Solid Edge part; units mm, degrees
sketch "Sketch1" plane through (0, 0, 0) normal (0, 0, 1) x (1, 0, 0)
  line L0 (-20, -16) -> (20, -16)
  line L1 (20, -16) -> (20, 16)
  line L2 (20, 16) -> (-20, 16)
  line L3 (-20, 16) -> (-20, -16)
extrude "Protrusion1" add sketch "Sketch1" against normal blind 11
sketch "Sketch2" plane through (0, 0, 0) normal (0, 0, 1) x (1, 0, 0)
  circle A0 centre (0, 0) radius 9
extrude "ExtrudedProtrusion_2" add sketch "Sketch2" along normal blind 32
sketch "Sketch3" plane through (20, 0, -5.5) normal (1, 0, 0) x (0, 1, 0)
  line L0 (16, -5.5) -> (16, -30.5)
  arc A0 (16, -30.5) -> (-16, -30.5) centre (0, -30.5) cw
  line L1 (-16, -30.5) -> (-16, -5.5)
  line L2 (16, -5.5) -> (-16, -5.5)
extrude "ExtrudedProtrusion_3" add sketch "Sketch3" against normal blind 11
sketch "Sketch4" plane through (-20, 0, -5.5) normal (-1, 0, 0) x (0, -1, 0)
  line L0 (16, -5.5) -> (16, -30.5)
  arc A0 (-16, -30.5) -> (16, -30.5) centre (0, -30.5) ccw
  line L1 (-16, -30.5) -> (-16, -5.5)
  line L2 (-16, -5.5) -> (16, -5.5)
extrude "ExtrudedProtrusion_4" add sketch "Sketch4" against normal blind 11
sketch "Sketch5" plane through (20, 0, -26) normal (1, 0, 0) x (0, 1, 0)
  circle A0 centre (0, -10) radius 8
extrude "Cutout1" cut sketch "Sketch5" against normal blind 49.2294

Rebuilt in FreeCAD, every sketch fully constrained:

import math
import FreeCAD as App
import Part
import Sketcher

V = App.Vector
Q = App.Units.Quantity


def add_polygon(sketch, points):
    """Adds a closed chain of lines whose ends are joined by coincident constraints."""
    first, n = sketch.GeometryCount, len(points)
    for a, b in zip(points, points[1:] + points[:1]):
        sketch.addGeometry(Part.LineSegment(App.Vector(*a, 0), App.Vector(*b, 0)), False)
    for i in range(n):
        sketch.addConstraint(Sketcher.Constraint("Coincident", first + i, 2, first + (i + 1) % n, 1))

doc = App.newDocument("Part")
body = doc.addObject("PartDesign::Body", "Body")

# Sketch on XY plane
sketch1 = body.newObject("Sketcher::SketchObject", "Sketch")
sketch1.AttachmentSupport = (doc.getObject("XY_Plane"), [""])
sketch1.MapMode = "FlatFace"
add_polygon(sketch1, [(-20, 16), (-20, -16), (20, -16), (20, 16)])  # lines 0-3
sketch1.addConstraint([
    Sketcher.Constraint("Vertical", 0),
    Sketcher.Constraint("Horizontal", 1),
    Sketcher.Constraint("Vertical", 2),
    Sketcher.Constraint("Horizontal", 3),
    Sketcher.Constraint("Symmetric", 0, 2, 2, 2, -1, 1),
    Sketcher.Constraint("DistanceX", 1, 1, 1, 2, Q("40 mm")),
    Sketcher.Constraint("DistanceY", 0, 2, 0, 1, Q("32 mm")),
])
pad1 = body.newObject("PartDesign::Pad", "Pad")
pad1.Profile = sketch1
pad1.Length = 11
pad1.Reversed = True

# Sketch on XY plane
sketch2 = body.newObject("Sketcher::SketchObject", "Sketch001")
sketch2.AttachmentSupport = (doc.getObject("XY_Plane"), [""])
sketch2.MapMode = "FlatFace"
sketch2.addGeometry(Part.Circle(V(0, 0, 0), V(0, 0, 1), 9), False)
sketch2.addConstraint([
    Sketcher.Constraint("Coincident", 0, 3, -1, 1),
    Sketcher.Constraint("Diameter", 0, Q("18 mm")),
])
pad2 = body.newObject("PartDesign::Pad", "Pad001")
pad2.Profile = sketch2
pad2.Length = 32

# Sketch on YZ plane
sketch3 = body.newObject("Sketcher::SketchObject", "Sketch002")
sketch3.AttachmentSupport = (doc.getObject("YZ_Plane"), [""])
sketch3.MapMode = "FlatFace"
sketch3.AttachmentOffset = App.Placement(V(0, 0, 20), App.Rotation())
sketch3.addGeometry([
    Part.LineSegment(V(16, -36, 0), V(16, -11, 0)),
    Part.LineSegment(V(16, -11, 0), V(-16, -11, 0)),
    Part.LineSegment(V(-16, -11, 0), V(-16, -36, 0)),
    Part.ArcOfCircle(Part.Circle(V(0, -36, 0), V(0, 0, 1), 16), math.radians(180), math.radians(360)),
], False)
sketch3.addConstraint([
    Sketcher.Constraint("Coincident", 0, 2, 1, 1),
    Sketcher.Constraint("Coincident", 1, 2, 2, 1),
    Sketcher.Constraint("Tangent", 2, 2, 3, 1),
    Sketcher.Constraint("Tangent", 3, 2, 0, 1),
    Sketcher.Constraint("Vertical", 0),
    Sketcher.Constraint("Horizontal", 1),
    Sketcher.Constraint("Vertical", 2),
    Sketcher.Constraint("PointOnObject", 3, 3, -2),
    Sketcher.Constraint("Radius", 3, Q("16 mm")),
    Sketcher.Constraint("DistanceY", 0, 1, 0, 2, Q("25 mm")),
    Sketcher.Constraint("DistanceY", 3, 3, -1, 1, Q("36 mm")),
])
pad3 = body.newObject("PartDesign::Pad", "Pad002")
pad3.Profile = sketch3
pad3.Length = 11
pad3.Reversed = True

# Sketch on YZ plane
sketch4 = body.newObject("Sketcher::SketchObject", "Sketch003")
sketch4.AttachmentSupport = (doc.getObject("YZ_Plane"), [""])
sketch4.MapMode = "FlatFace"
sketch4.AttachmentOffset = App.Placement(V(0, 0, -20), App.Rotation())
sketch4.addGeometry([
    Part.LineSegment(V(-16, -36, 0), V(-16, -11, 0)),
    Part.LineSegment(V(-16, -11, 0), V(16, -11, 0)),
    Part.LineSegment(V(16, -11, 0), V(16, -36, 0)),
    Part.ArcOfCircle(Part.Circle(V(0, -36, 0), V(0, 0, 1), 16), math.radians(180), math.radians(360)),
], False)
sketch4.addConstraint([
    Sketcher.Constraint("Coincident", 0, 2, 1, 1),
    Sketcher.Constraint("Coincident", 1, 2, 2, 1),
    Sketcher.Constraint("Tangent", 2, 2, 3, 2),
    Sketcher.Constraint("Tangent", 3, 1, 0, 1),
    Sketcher.Constraint("Vertical", 0),
    Sketcher.Constraint("Horizontal", 1),
    Sketcher.Constraint("Vertical", 2),
    Sketcher.Constraint("PointOnObject", 3, 3, -2),
    Sketcher.Constraint("Radius", 3, Q("16 mm")),
    Sketcher.Constraint("DistanceY", 0, 1, 0, 2, Q("25 mm")),
    Sketcher.Constraint("DistanceY", 3, 3, -1, 1, Q("36 mm")),
])
pad4 = body.newObject("PartDesign::Pad", "Pad003")
pad4.Profile = sketch4
pad4.Length = 11

# Sketch on YZ plane
sketch5 = body.newObject("Sketcher::SketchObject", "Sketch004")
sketch5.AttachmentSupport = (doc.getObject("YZ_Plane"), [""])
sketch5.MapMode = "FlatFace"
sketch5.AttachmentOffset = App.Placement(V(0, 0, 20), App.Rotation())
sketch5.addGeometry(Part.Circle(V(0, -36, 0), V(0, 0, 1), 8), False)
sketch5.addConstraint([
    Sketcher.Constraint("PointOnObject", 0, 3, -2),
    Sketcher.Constraint("Diameter", 0, Q("16 mm")),
    Sketcher.Constraint("DistanceY", 0, 3, -1, 1, Q("36 mm")),
])
pocket1 = body.newObject("PartDesign::Pocket", "Pocket")
pocket1.Profile = sketch5
pocket1.Length = 49.2294

doc.recompute()
